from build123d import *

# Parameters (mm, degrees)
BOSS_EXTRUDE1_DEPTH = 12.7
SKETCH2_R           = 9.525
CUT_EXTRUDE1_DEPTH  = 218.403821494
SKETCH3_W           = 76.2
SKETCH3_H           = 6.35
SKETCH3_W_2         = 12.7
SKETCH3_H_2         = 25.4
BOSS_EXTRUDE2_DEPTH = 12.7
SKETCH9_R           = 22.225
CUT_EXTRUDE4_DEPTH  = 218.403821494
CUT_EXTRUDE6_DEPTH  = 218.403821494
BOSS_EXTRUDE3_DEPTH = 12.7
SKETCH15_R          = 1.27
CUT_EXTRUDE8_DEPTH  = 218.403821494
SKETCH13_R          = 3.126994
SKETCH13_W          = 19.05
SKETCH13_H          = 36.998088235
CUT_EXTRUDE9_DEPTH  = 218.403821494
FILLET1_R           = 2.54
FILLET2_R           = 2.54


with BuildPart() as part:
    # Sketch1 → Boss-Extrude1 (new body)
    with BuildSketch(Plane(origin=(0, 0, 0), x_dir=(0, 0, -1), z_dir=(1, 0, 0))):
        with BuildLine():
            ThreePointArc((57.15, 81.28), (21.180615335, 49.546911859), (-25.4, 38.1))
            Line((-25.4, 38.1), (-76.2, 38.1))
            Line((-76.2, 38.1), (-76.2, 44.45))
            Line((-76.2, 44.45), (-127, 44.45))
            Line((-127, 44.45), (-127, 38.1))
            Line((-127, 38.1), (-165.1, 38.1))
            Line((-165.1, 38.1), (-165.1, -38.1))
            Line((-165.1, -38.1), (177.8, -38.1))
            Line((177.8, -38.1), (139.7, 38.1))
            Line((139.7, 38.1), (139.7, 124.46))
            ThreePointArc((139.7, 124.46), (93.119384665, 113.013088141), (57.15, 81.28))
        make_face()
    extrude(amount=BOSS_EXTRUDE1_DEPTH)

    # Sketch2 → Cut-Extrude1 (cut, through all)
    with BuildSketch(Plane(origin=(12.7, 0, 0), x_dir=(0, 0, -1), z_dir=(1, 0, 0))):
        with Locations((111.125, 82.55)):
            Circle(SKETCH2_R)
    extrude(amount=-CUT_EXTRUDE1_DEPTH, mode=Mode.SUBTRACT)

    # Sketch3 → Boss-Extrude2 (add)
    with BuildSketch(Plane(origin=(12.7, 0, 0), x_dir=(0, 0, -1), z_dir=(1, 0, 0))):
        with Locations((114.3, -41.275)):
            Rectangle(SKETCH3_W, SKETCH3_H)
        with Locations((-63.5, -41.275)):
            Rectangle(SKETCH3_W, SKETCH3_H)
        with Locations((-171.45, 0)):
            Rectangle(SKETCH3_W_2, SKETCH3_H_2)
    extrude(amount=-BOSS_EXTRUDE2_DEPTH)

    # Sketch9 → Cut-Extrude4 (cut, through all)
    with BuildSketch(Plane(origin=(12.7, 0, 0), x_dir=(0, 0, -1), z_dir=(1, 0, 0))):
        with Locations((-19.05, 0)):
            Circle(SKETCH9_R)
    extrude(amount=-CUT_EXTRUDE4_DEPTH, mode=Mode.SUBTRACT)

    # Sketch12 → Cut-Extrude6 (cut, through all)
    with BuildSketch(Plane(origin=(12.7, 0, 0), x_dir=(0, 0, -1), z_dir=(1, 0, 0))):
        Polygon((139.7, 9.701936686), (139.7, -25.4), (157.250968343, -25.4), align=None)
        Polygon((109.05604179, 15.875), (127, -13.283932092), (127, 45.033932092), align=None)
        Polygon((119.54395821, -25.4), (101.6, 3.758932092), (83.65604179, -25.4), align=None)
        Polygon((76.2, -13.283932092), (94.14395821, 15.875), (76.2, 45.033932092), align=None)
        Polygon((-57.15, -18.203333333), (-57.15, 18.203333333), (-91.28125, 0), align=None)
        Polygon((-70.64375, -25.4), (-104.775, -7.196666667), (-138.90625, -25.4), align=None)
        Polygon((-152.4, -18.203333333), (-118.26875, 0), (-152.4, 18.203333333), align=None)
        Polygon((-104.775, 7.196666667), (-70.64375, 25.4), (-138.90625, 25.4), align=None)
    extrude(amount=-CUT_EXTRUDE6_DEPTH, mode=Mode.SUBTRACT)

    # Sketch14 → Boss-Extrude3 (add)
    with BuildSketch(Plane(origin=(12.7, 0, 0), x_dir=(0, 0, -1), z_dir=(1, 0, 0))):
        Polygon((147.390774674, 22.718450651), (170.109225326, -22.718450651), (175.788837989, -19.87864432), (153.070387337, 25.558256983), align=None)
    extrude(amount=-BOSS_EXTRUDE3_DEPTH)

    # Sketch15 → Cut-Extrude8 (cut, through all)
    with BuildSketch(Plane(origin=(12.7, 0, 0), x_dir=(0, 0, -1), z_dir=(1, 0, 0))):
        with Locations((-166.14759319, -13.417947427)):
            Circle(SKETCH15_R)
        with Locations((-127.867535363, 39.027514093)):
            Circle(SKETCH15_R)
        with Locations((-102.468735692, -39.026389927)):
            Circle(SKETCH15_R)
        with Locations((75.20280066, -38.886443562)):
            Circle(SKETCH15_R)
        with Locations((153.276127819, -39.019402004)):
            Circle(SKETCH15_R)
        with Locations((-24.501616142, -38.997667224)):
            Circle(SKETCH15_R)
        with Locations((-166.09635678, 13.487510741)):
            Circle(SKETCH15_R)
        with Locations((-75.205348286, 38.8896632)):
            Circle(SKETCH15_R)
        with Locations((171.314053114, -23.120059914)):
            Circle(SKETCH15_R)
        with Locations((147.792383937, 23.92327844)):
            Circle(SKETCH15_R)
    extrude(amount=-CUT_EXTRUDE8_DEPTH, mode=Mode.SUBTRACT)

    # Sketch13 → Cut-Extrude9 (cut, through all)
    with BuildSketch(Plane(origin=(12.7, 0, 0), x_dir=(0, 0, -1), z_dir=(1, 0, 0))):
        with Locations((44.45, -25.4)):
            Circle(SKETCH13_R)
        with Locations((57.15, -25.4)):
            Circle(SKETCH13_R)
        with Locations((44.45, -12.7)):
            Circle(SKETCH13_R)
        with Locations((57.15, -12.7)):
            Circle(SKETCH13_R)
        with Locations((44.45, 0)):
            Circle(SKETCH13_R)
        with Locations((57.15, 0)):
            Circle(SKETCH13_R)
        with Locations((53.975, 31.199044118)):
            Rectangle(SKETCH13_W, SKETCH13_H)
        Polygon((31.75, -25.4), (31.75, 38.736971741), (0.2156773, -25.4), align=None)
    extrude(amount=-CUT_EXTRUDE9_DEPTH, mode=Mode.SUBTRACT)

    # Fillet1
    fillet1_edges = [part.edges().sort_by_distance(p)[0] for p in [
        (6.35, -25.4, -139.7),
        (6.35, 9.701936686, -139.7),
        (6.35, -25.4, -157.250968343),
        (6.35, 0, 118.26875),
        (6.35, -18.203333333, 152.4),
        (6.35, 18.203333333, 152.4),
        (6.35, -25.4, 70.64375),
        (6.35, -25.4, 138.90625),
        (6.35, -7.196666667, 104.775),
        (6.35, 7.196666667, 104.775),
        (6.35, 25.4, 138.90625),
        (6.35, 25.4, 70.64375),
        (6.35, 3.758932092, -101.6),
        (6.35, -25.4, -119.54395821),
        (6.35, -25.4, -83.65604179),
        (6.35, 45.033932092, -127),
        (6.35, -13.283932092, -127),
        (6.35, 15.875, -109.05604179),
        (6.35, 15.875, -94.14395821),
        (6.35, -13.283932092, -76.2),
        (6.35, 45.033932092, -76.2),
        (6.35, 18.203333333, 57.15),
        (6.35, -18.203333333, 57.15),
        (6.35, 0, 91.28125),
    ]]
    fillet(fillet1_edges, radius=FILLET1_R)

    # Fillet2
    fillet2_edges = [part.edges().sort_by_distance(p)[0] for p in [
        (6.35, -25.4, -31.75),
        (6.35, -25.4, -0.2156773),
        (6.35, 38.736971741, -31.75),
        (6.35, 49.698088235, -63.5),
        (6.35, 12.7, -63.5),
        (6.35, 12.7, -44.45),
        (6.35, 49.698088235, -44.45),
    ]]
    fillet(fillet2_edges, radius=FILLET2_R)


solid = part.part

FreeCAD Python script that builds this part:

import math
import FreeCAD as App
import Part
import Sketcher

V = App.Vector
Q = App.Units.Quantity


def edges_at(feature, points):
    """Names of the edges that pass closest to the given points."""
    edges = feature.Shape.Edges
    near = lambda p: min(range(len(edges)), key=lambda i: edges[i].distToShape(Part.Vertex(*p))[0])
    return sorted({f"Edge{near(p) + 1}" for p in points})

doc = App.newDocument("Part")
body = doc.addObject("PartDesign::Body", "Body")

# Sketch on YZ plane
sketch1 = body.newObject("Sketcher::SketchObject", "Sketch")
sketch1.AttachmentSupport = (doc.getObject("YZ_Plane"), [""])
sketch1.MapMode = "FlatFace"
sketch1.addGeometry([
    Part.ArcOfCircle(Part.Circle(V(139, 25, 0), V(0, 0, 1), 100), math.radians(180), math.radians(235)),  # 0
    Part.LineSegment(V(38, 25, 0), V(38, 76, 0)),  # 1
    Part.LineSegment(V(38, 76, 0), V(44, 76, 0)),  # 2
    Part.LineSegment(V(44, 76, 0), V(44, 127, 0)),  # 3
    Part.LineSegment(V(44, 127, 0), V(38, 127, 0)),  # 4
    Part.LineSegment(V(38, 127, 0), V(38, 165, 0)),  # 5
    Part.LineSegment(V(38, 165, 0), V(-38, 165, 0)),  # 6
    Part.LineSegment(V(-38, 165, 0), V(-38, -178, 0)),  # 7
    Part.LineSegment(V(-38, -178, 0), V(38, -140, 0)),  # 8
    Part.LineSegment(V(38, -140, 0), V(124, -140, 0)),  # 9
    Part.ArcOfCircle(Part.Circle(V(24, -140, 0), V(0, 0, 1), 100), math.radians(0), math.radians(55)),  # 10
], False)
sketch1.addConstraint([
    Sketcher.Constraint("Tangent", 0, 1, 1, 1),
    Sketcher.Constraint("Coincident", 1, 2, 2, 1),
    Sketcher.Constraint("Coincident", 2, 2, 3, 1),
    Sketcher.Constraint("Coincident", 3, 2, 4, 1),
    Sketcher.Constraint("Coincident", 4, 2, 5, 1),
    Sketcher.Constraint("Coincident", 5, 2, 6, 1),
    Sketcher.Constraint("Coincident", 6, 2, 7, 1),
    Sketcher.Constraint("Coincident", 7, 2, 8, 1),
    Sketcher.Constraint("Coincident", 8, 2, 9, 1),
    Sketcher.Constraint("Coincident", 9, 2, 10, 1),
    Sketcher.Constraint("Tangent", 10, 2, 0, 2),
    Sketcher.Constraint("Vertical", 1),
    Sketcher.Constraint("Horizontal", 2),
    Sketcher.Constraint("Vertical", 3),
    Sketcher.Constraint("Horizontal", 4),
    Sketcher.Constraint("Vertical", 5),
    Sketcher.Constraint("Horizontal", 6),
    Sketcher.Constraint("Vertical", 7),
    Sketcher.Constraint("Horizontal", 9),
    Sketcher.Constraint("Equal", 0, 10),
    Sketcher.Constraint("Horizontal", 10, 3, 8, 2),
    Sketcher.Constraint("Vertical", 1, 2, 4, 2),
    Sketcher.Constraint("Vertical", 5, 2, 8, 2),
    Sketcher.Constraint("Equal", 1, 3),
    Sketcher.Constraint("DistanceX", 6, 2, 6, 1, Q("3 in")),
    Sketcher.Constraint("DistanceY", 1, 1, 1, 2, Q("2 in")),
    Sketcher.Constraint("DistanceX", 9, 1, 9, 2, Q("3.4 in")),
    Sketcher.Constraint("DistanceY", 5, 1, 5, 2, Q("1.5 in")),
    Sketcher.Constraint("DistanceY", 7, 2, 7, 1, Q("13.5 in")),
    Sketcher.Constraint("DistanceY", -1, 1, 0, 3, Q("1 in")),
    Sketcher.Constraint("DistanceX", 2, 1, 2, 2, Q("0.25 in")),
    Sketcher.Constraint("DistanceY", 10, 3, -1, 1, Q("5.5 in")),
    Sketcher.Constraint("DistanceX", -1, 1, 0, 1, Q("1.5 in")),
])
pad1 = body.newObject("PartDesign::Pad", "Pad")
pad1.Profile = sketch1
pad1.Length = Q("0.5 in")

# Sketch on YZ plane
sketch2 = body.newObject("Sketcher::SketchObject", "Sketch001")
sketch2.AttachmentSupport = (doc.getObject("YZ_Plane"), [""])
sketch2.MapMode = "FlatFace"
sketch2.AttachmentOffset = App.Placement(V(0, 0, 0.5 * 25.4), App.Rotation())
sketch2.addGeometry(Part.Circle(V(83, -111, 0), V(0, 0, 1), 10), False)
sketch2.addConstraint([
    Sketcher.Constraint("Diameter", 0, Q("0.75 in")),
    Sketcher.Constraint("DistanceX", -1, 1, 0, 3, Q("3.25 in")),
    Sketcher.Constraint("DistanceY", 0, 3, -1, 1, Q("4.375 in")),
])
pocket1 = body.newObject("PartDesign::Pocket", "Pocket")
pocket1.Profile = sketch2
pocket1.Type = "ThroughAll"

# Sketch on YZ plane
sketch3 = body.newObject("Sketcher::SketchObject", "Sketch002")
sketch3.AttachmentSupport = (doc.getObject("YZ_Plane"), [""])
sketch3.MapMode = "FlatFace"
sketch3.AttachmentOffset = App.Placement(V(0, 0, 0.5 * 25.4), App.Rotation())
sketch3.addGeometry([
    Part.LineSegment(V(-38, -76, 0), V(-44, -76, 0)),  # 0
    Part.LineSegment(V(-44, -76, 0), V(-44, -152, 0)),  # 1
    Part.LineSegment(V(-44, -152, 0), V(-38, -152, 0)),  # 2
    Part.LineSegment(V(-38, -152, 0), V(-38, -76, 0)),  # 3
    Part.LineSegment(V(-38, 102, 0), V(-44, 102, 0)),  # 4
    Part.LineSegment(V(-44, 102, 0), V(-44, 25, 0)),  # 5
    Part.LineSegment(V(-44, 25, 0), V(-38, 25, 0)),  # 6
    Part.LineSegment(V(-38, 25, 0), V(-38, 102, 0)),  # 7
    Part.LineSegment(V(13, 178, 0), V(-13, 178, 0)),  # 8
    Part.LineSegment(V(-13, 178, 0), V(-13, 165, 0)),  # 9
    Part.LineSegment(V(-13, 165, 0), V(13, 165, 0)),  # 10
    Part.LineSegment(V(13, 165, 0), V(13, 178, 0)),  # 11
], False)
sketch3.addConstraint([
    Sketcher.Constraint("Coincident", 0, 2, 1, 1),
    Sketcher.Constraint("Coincident", 1, 2, 2, 1),
    Sketcher.Constraint("Coincident", 2, 2, 3, 1),
    Sketcher.Constraint("Coincident", 3, 2, 0, 1),
    Sketcher.Constraint("Coincident", 4, 2, 5, 1),
    Sketcher.Constraint("Coincident", 5, 2, 6, 1),
    Sketcher.Constraint("Coincident", 6, 2, 7, 1),
    Sketcher.Constraint("Coincident", 7, 2, 4, 1),
    Sketcher.Constraint("Coincident", 8, 2, 9, 1),
    Sketcher.Constraint("Coincident", 9, 2, 10, 1),
    Sketcher.Constraint("Coincident", 10, 2, 11, 1),
    Sketcher.Constraint("Coincident", 11, 2, 8, 1),
    Sketcher.Constraint("Horizontal", 0),
    Sketcher.Constraint("Vertical", 1),
    Sketcher.Constraint("Horizontal", 2),
    Sketcher.Constraint("Vertical", 3),
    Sketcher.Constraint("Horizontal", 4),
    Sketcher.Constraint("Vertical", 5),
    Sketcher.Constraint("Horizontal", 6),
    Sketcher.Constraint("Vertical", 7),
    Sketcher.Constraint("Horizontal", 8),
    Sketcher.Constraint("Vertical", 9),
    Sketcher.Constraint("Horizontal", 10),
    Sketcher.Constraint("Vertical", 11),
    Sketcher.Constraint("Vertical", 1, 2, 4, 2),
    Sketcher.Constraint("Vertical", 3, 2, 6, 2),
    Sketcher.Constraint("Equal", 3, 5),
    Sketcher.Constraint("DistanceX", 8, 2, 8, 1, Q("1 in")),
    Sketcher.Constraint("DistanceY", 1, 2, 1, 1, Q("3 in")),
    Sketcher.Constraint("DistanceY", 9, 2, 9, 1, Q("0.5 in")),
    Sketcher.Constraint("DistanceY", 0, 2, -1, 1, Q("3 in")),
    Sketcher.Constraint("DistanceY", -1, 1, 4, 2, Q("4 in")),
    Sketcher.Constraint("DistanceY", -1, 1, 8, 2, Q("7 in")),
    Sketcher.Constraint("DistanceX", 7, 2, 8, 2, Q("1 in")),
    Sketcher.Constraint("DistanceX", 0, 2, 0, 1, Q("0.25 in")),
    Sketcher.Constraint("DistanceX", 2, 2, -1, 1, Q("1.5 in")),
])
pad2 = body.newObject("PartDesign::Pad", "Pad001")
pad2.Profile = sketch3
pad2.Length = Q("0.5 in")
pad2.Reversed = True

# Sketch on YZ plane
sketch4 = body.newObject("Sketcher::SketchObject", "Sketch003")
sketch4.AttachmentSupport = (doc.getObject("YZ_Plane"), [""])
sketch4.MapMode = "FlatFace"
sketch4.AttachmentOffset = App.Placement(V(0, 0, 0.5 * 25.4), App.Rotation())
sketch4.addGeometry(Part.Circle(V(0, 19, 0), V(0, 0, 1), 22), False)
sketch4.addConstraint([
    Sketcher.Constraint("PointOnObject", 0, 3, -2),
    Sketcher.Constraint("Diameter", 0, Q("1.75 in")),
    Sketcher.Constraint("DistanceY", -1, 1, 0, 3, Q("0.75 in")),
])
pocket2 = body.newObject("PartDesign::Pocket", "Pocket001")
pocket2.Profile = sketch4
pocket2.Type = "ThroughAll"

# Sketch on YZ plane
sketch5 = body.newObject("Sketcher::SketchObject", "Sketch004")
sketch5.AttachmentSupport = (doc.getObject("YZ_Plane"), [""])
sketch5.MapMode = "FlatFace"
sketch5.AttachmentOffset = App.Placement(V(0, 0, 0.5 * 25.4), App.Rotation())
sketch5.addGeometry([
    Part.LineSegment(V(10, -140, 0), V(-25, -140, 0)),  # 0
    Part.LineSegment(V(-25, -140, 0), V(-25, -157, 0)),  # 1
    Part.LineSegment(V(-25, -157, 0), V(10, -140, 0)),  # 2
    Part.LineSegment(V(16, -109, 0), V(-13, -127, 0)),  # 3
    Part.LineSegment(V(-13, -127, 0), V(45, -127, 0)),  # 4
    Part.LineSegment(V(45, -127, 0), V(16, -109, 0)),  # 5
    Part.LineSegment(V(-25, -120, 0), V(4, -102, 0)),  # 6
    Part.LineSegment(V(4, -102, 0), V(-25, -84, 0)),  # 7
    Part.LineSegment(V(-25, -84, 0), V(-25, -120, 0)),  # 8
    Part.LineSegment(V(-13, -76, 0), V(16, -94, 0)),  # 9
    Part.LineSegment(V(16, -94, 0), V(45, -76, 0)),  # 10
    Part.LineSegment(V(45, -76, 0), V(-13, -76, 0)),  # 11
    Part.LineSegment(V(-18, 57, 0), V(18, 57, 0)),  # 12
    Part.LineSegment(V(18, 57, 0), V(0, 91, 0)),  # 13
    Part.LineSegment(V(0, 91, 0), V(-18, 57, 0)),  # 14
    Part.LineSegment(V(-25, 71, 0), V(-7, 105, 0)),  # 15
    Part.LineSegment(V(-7, 105, 0), V(-25, 139, 0)),  # 16
    Part.LineSegment(V(-25, 139, 0), V(-25, 71, 0)),  # 17
    Part.LineSegment(V(-18, 152, 0), V(0, 118, 0)),  # 18
    Part.LineSegment(V(0, 118, 0), V(18, 152, 0)),  # 19
    Part.LineSegment(V(18, 152, 0), V(-18, 152, 0)),  # 20
    Part.LineSegment(V(7, 105, 0), V(25, 71, 0)),  # 21
    Part.LineSegment(V(25, 71, 0), V(25, 139, 0)),  # 22
    Part.LineSegment(V(25, 139, 0), V(7, 105, 0)),  # 23
], False)
sketch5.addConstraint([
    Sketcher.Constraint("Coincident", 0, 2, 1, 1),
    Sketcher.Constraint("Coincident", 1, 2, 2, 1),
    Sketcher.Constraint("Coincident", 2, 2, 0, 1),
    Sketcher.Constraint("Coincident", 3, 2, 4, 1),
    Sketcher.Constraint("Coincident", 4, 2, 5, 1),
    Sketcher.Constraint("Coincident", 5, 2, 3, 1),
    Sketcher.Constraint("Coincident", 6, 2, 7, 1),
    Sketcher.Constraint("Coincident", 7, 2, 8, 1),
    Sketcher.Constraint("Coincident", 8, 2, 6, 1),
    Sketcher.Constraint("Coincident", 9, 2, 10, 1),
    Sketcher.Constraint("Coincident", 10, 2, 11, 1),
    Sketcher.Constraint("Coincident", 11, 2, 9, 1),
    Sketcher.Constraint("Coincident", 12, 2, 13, 1),
    Sketcher.Constraint("Coincident", 13, 2, 14, 1),
    Sketcher.Constraint("Coincident", 14, 2, 12, 1),
    Sketcher.Constraint("Coincident", 15, 2, 16, 1),
    Sketcher.Constraint("Coincident", 16, 2, 17, 1),
    Sketcher.Constraint("Coincident", 17, 2, 15, 1),
    Sketcher.Constraint("Coincident", 18, 2, 19, 1),
    Sketcher.Constraint("Coincident", 19, 2, 20, 1),
    Sketcher.Constraint("Coincident", 20, 2, 18, 1),
    Sketcher.Constraint("Coincident", 21, 2, 22, 1),
    Sketcher.Constraint("Coincident", 22, 2, 23, 1),
    Sketcher.Constraint("Coincident", 23, 2, 21, 1),
    Sketcher.Constraint("Horizontal", 0),
    Sketcher.Constraint("Vertical", 1),
    Sketcher.Constraint("Horizontal", 4),
    Sketcher.Constraint("Vertical", 8),
    Sketcher.Constraint("Horizontal", 11),
    Sketcher.Constraint("Horizontal", 12),
    Sketcher.Constraint("Vertical", 17),
    Sketcher.Constraint("Horizontal", 20),
    Sketcher.Constraint("Vertical", 22),
    Sketcher.Constraint("Symmetric", 17, 2, 21, 2, -2),
    Sketcher.Constraint("Symmetric", 15, 2, 23, 2, -2),
    Sketcher.Constraint("PointOnObject", 13, 2, -2),
    Sketcher.Constraint("PointOnObject", 18, 2, -2),
    Sketcher.Constraint("Parallel", 3, 6),
    Sketcher.Constraint("Parallel", 5, 7),
    Sketcher.Constraint("Parallel", 7, 9),
    Sketcher.Constraint("Parallel", 6, 10),
    Sketcher.Constraint("Parallel", 14, 15),
    Sketcher.Constraint("Parallel", 13, 16),
    Sketcher.Constraint("Parallel", 16, 18),
    Sketcher.Constraint("Parallel", 15, 19),
    Sketcher.Constraint("Parallel", 18, 21),
    Sketcher.Constraint("Parallel", 19, 23),
    Sketcher.Constraint("Vertical", 1, 2, 7, 2),
    Sketcher.Constraint("Vertical", 5, 2, 9, 2),
    Sketcher.Constraint("Vertical", 4, 2, 10, 2),
    Sketcher.Constraint("Vertical", 3, 2, 11, 2),
    Sketcher.Constraint("Vertical", 8, 2, 16, 2),
    Sketcher.Constraint("Vertical", 12, 2, 19, 2),
    Sketcher.Constraint("Equal", 5, 6),
    Sketcher.Constraint("Equal", 14, 15),
    Sketcher.Constraint("DistanceX", 0, 2, -1, 1, Q("1 in")),
    Sketcher.Constraint("DistanceY", 3, 2, -1, 1, Q("5 in")),
    Sketcher.Constraint("DistanceY", 6, 2, -1, 1, Q("4 in")),
    Sketcher.Constraint("DistanceY", 10, 2, -1, 1, Q("3 in")),
    Sketcher.Constraint("DistanceY", -1, 1, 19, 2, Q("6 in")),
    Sketcher.Constraint("DistanceY", 0, 2, -1, 1, Q("5.5 in")),
    Sketcher.Constraint("DistanceY", 17, 2, 17, 1, Q("2.6875 in")),
    Sketcher.Constraint("DistanceY", -1, 1, 12, 2, Q("2.25 in")),
    Sketcher.Constraint("DistanceX", -1, 1, 5, 2, Q("0.625 in")),
    Sketcher.Constraint("DistanceY", -1, 1, 15, 2, Q("4.125 in")),
    Sketcher.Constraint("DistanceY", 1, 2, 1, 1, Q("17.550968 mm")),
    Sketcher.Constraint("DistanceX", 12, 2, 10, 2, Q("26.830599 mm")),
    Sketcher.Constraint("Distance", 2, Q("39.245158 mm")),
    Sketcher.Constraint("Distance", 3, Q("34.237829 mm")),
    Sketcher.Constraint("DistanceX", 4, 1, 4, 2, Q("58.317864 mm")),
])
pocket3 = body.newObject("PartDesign::Pocket", "Pocket002")
pocket3.Profile = sketch5
pocket3.Type = "ThroughAll"

# Sketch on YZ plane
sketch6 = body.newObject("Sketcher::SketchObject", "Sketch005")
sketch6.AttachmentSupport = (doc.getObject("YZ_Plane"), [""])
sketch6.MapMode = "FlatFace"
sketch6.AttachmentOffset = App.Placement(V(0, 0, 0.5 * 25.4), App.Rotation())
sketch6.addGeometry([
    Part.LineSegment(V(23, -147, 0), V(-23, -170, 0)),
    Part.LineSegment(V(-23, -170, 0), V(-20, -176, 0)),
    Part.LineSegment(V(-20, -176, 0), V(26, -153, 0)),
    Part.LineSegment(V(26, -153, 0), V(23, -147, 0)),
], False)
sketch6.addConstraint([
    Sketcher.Constraint("Coincident", 0, 2, 1, 1),
    Sketcher.Constraint("Coincident", 1, 2, 2, 1),
    Sketcher.Constraint("Coincident", 2, 2, 3, 1),
    Sketcher.Constraint("Coincident", 3, 2, 0, 1),
    Sketcher.Constraint("Perpendicular", 0, 1),
    Sketcher.Constraint("Perpendicular", 1, 2),
    Sketcher.Constraint("Perpendicular", 2, 3),
    Sketcher.Constraint("Distance", 0, Q("2 in")),
    Sketcher.Constraint("Distance", 1, Q("0.25 in")),
    Sketcher.Constraint("DistanceX", 1, 2, 2, 2, Q("45.436901 mm")),
    Sketcher.Constraint("DistanceX", 0, 2, -1, 1, Q("22.718451 mm")),
    Sketcher.Constraint("DistanceY", 0, 2, -1, 1, Q("170.109225 mm")),
])
pad3 = body.newObject("PartDesign::Pad", "Pad002")
pad3.Profile = sketch6
pad3.Length = Q("0.5 in")
pad3.Reversed = True

# Sketch on YZ plane
sketch7 = body.newObject("Sketcher::SketchObject", "Sketch006")
sketch7.AttachmentSupport = (doc.getObject("YZ_Plane"), [""])
sketch7.MapMode = "FlatFace"
sketch7.AttachmentOffset = App.Placement(V(0, 0, 0.5 * 25.4), App.Rotation())
sketch7.addGeometry([
    Part.Circle(V(-13.4, 166.1, 0), V(0, 0, 1), 1.3),  # 0
    Part.Circle(V(39, 127.9, 0), V(0, 0, 1), 1.3),  # 1
    Part.Circle(V(-39, 102.5, 0), V(0, 0, 1), 1.3),  # 2
    Part.Circle(V(-38.9, -75.2, 0), V(0, 0, 1), 1.3),  # 3
    Part.Circle(V(-39, -153.3, 0), V(0, 0, 1), 1.3),  # 4
    Part.Circle(V(-39, 24.5, 0), V(0, 0, 1), 1.3),  # 5
    Part.Circle(V(13.5, 166.1, 0), V(0, 0, 1), 1.3),  # 6
    Part.Circle(V(38.9, 75.2, 0), V(0, 0, 1), 1.3),  # 7
    Part.Circle(V(-23.1, -171.3, 0), V(0, 0, 1), 1.3),  # 8
    Part.Circle(V(23.9, -147.8, 0), V(0, 0, 1), 1.3),  # 9
], False)
sketch7.addConstraint([
    Sketcher.Constraint("Equal", 0, 1),
    Sketcher.Constraint("Equal", 1, 2),
    Sketcher.Constraint("Equal", 2, 3),
    Sketcher.Constraint("Equal", 3, 4),
    Sketcher.Constraint("Equal", 4, 5),
    Sketcher.Constraint("Equal", 5, 6),
    Sketcher.Constraint("Equal", 6, 7),
    Sketcher.Constraint("Equal", 7, 8),
    Sketcher.Constraint("Equal", 8, 9),
    Sketcher.Constraint("Diameter", 0, Q("0.1 in")),
    Sketcher.Constraint("DistanceX", 8, 3, 9, 3, Q("1.8520999 in")),
    Sketcher.Constraint("DistanceY", 3, 3, -1, 1, Q("75.202801 mm")),
    Sketcher.Constraint("DistanceY", 2, 3, 1, 3, Q("25.3988 mm")),
    Sketcher.Constraint("DistanceX", 2, 3, 6, 3, Q("52.513901 mm")),
    Sketcher.Constraint("DistanceY", 8, 3, 7, 3, Q("246.519401 mm")),
    Sketcher.Constraint("DistanceY", 9, 3, 5, 3, Q("172.294 mm")),
    Sketcher.Constraint("DistanceX", 2, 3, -1, 1, Q("39.02639 mm")),
    Sketcher.Constraint("DistanceY", -1, 1, 7, 3, Q("75.205348 mm")),
    Sketcher.Constraint("DistanceX", 8, 3, -1, 1, Q("23.12006 mm")),
    Sketcher.Constraint("DistanceX", 0, 3, 1, 3, Q("52.445462 mm")),
    Sketcher.Constraint("DistanceX", 4, 3, 3, 3, Q("0.132958 mm")),
    Sketcher.Constraint("DistanceY", 4, 3, 0, 3, Q("319.423721 mm")),
    Sketcher.Constraint("DistanceY", 5, 3, 2, 3, Q("77.96712 mm")),
    Sketcher.Constraint("DistanceX", 5, 3, 1, 3, Q("78.025181 mm")),
    Sketcher.Constraint("DistanceX", 0, 3, 6, 3, Q("26.905458 mm")),
    Sketcher.Constraint("DistanceY", 1, 3, 6, 3, Q("38.228821 mm")),
    Sketcher.Constraint("DistanceX", 7, 3, 1, 3, Q("0.137851 mm")),
    Sketcher.Constraint("DistanceY", 7, 3, 6, 3, Q("90.891008 mm")),
    Sketcher.Constraint("DistanceX", 4, 3, 9, 3, Q("62.94268 mm")),
    Sketcher.Constraint("DistanceY", -1, 1, 0, 3, Q("166.147593 mm")),
])
pocket4 = body.newObject("PartDesign::Pocket", "Pocket003")
pocket4.Profile = sketch7
pocket4.Type = "ThroughAll"

# Sketch on YZ plane
sketch8 = body.newObject("Sketcher::SketchObject", "Sketch007")
sketch8.AttachmentSupport = (doc.getObject("YZ_Plane"), [""])
sketch8.MapMode = "FlatFace"
sketch8.AttachmentOffset = App.Placement(V(0, 0, 0.5 * 25.4), App.Rotation())
sketch8.addGeometry([
    Part.Circle(V(-25.4, -44.5, 0), V(0, 0, 1), 3.1),  # 0
    Part.Circle(V(-25.4, -57.1, 0), V(0, 0, 1), 3.1),  # 1
    Part.Circle(V(-12.7, -44.5, 0), V(0, 0, 1), 3.1),  # 2
    Part.Circle(V(-12.7, -57.1, 0), V(0, 0, 1), 3.1),  # 3
    Part.Circle(V(0, -44.5, 0), V(0, 0, 1), 3.1),  # 4
    Part.Circle(V(0, -57.1, 0), V(0, 0, 1), 3.1),  # 5
    Part.LineSegment(V(49.7, -44.5, 0), V(12.7, -44.5, 0)),  # 6
    Part.LineSegment(V(12.7, -44.5, 0), V(12.7, -63.5, 0)),  # 7
    Part.LineSegment(V(12.7, -63.5, 0), V(49.7, -63.5, 0)),  # 8
    Part.LineSegment(V(49.7, -63.5, 0), V(49.7, -44.5, 0)),  # 9
    Part.LineSegment(V(-25.4, -31.8, 0), V(38.7, -31.8, 0)),  # 10
    Part.LineSegment(V(38.7, -31.8, 0), V(-25.4, -0.2, 0)),  # 11
    Part.LineSegment(V(-25.4, -0.2, 0), V(-25.4, -31.8, 0)),  # 12
], False)
sketch8.addConstraint([
    Sketcher.Constraint("Coincident", 6, 2, 7, 1),
    Sketcher.Constraint("Coincident", 7, 2, 8, 1),
    Sketcher.Constraint("Coincident", 8, 2, 9, 1),
    Sketcher.Constraint("Coincident", 9, 2, 6, 1),
    Sketcher.Constraint("Coincident", 10, 2, 11, 1),
    Sketcher.Constraint("Coincident", 11, 2, 12, 1),
    Sketcher.Constraint("Coincident", 12, 2, 10, 1),
    Sketcher.Constraint("Horizontal", 6),
    Sketcher.Constraint("Vertical", 7),
    Sketcher.Constraint("Horizontal", 8),
    Sketcher.Constraint("Vertical", 9),
    Sketcher.Constraint("Horizontal", 10),
    Sketcher.Constraint("Vertical", 12),
    Sketcher.Constraint("Equal", 0, 1),
    Sketcher.Constraint("Equal", 1, 2),
    Sketcher.Constraint("Equal", 2, 3),
    Sketcher.Constraint("Equal", 3, 4),
    Sketcher.Constraint("Equal", 4, 5),
    Sketcher.Constraint("PointOnObject", 4, 3, -2),
    Sketcher.Constraint("PointOnObject", 5, 3, -2),
    Sketcher.Constraint("Horizontal", 0, 3, 2, 3),
    Sketcher.Constraint("Horizontal", 1, 3, 3, 3),
    Sketcher.Constraint("Horizontal", 2, 3, 4, 3),
    Sketcher.Constraint("Horizontal", 3, 3, 5, 3),
    Sketcher.Constraint("Horizontal", 4, 3, 6, 2),
    Sketcher.Constraint("Vertical", 0, 3, 1, 3),
    Sketcher.Constraint("Vertical", 2, 3, 3, 3),
    Sketcher.Constraint("Vertical", 1, 3, 11, 2),
    Sketcher.Constraint("DistanceX", 0, 3, -1, 1, Q("1 in")),
    Sketcher.Constraint("DistanceX", 2, 3, 6, 2, Q("1 in")),
    Sketcher.Constraint("DistanceY", 1, 3, 12, 2, Q("1 in")),
    Sketcher.Constraint("DistanceY", 7, 2, 7, 1, Q("0.75 in")),
    Sketcher.Constraint("DistanceX", 2, 3, -1, 1, Q("0.5 in")),
    Sketcher.Constraint("DistanceY", 7, 2, -1, 1, Q("2.5 in")),
    Sketcher.Constraint("DistanceY", 1, 3, 0, 3, Q("0.5 in")),
    Sketcher.Constraint("Diameter", 0, Q("6.253988 mm")),
    Sketcher.Constraint("DistanceX", 6, 2, 6, 1, Q("36.998088 mm")),
    Sketcher.Constraint("DistanceX", 10, 1, 10, 2, Q("64.136972 mm")),
    Sketcher.Constraint("DistanceY", 12, 2, 12, 1, Q("31.534323 mm")),
])
pocket5 = body.newObject("PartDesign::Pocket", "Pocket004")
pocket5.Profile = sketch8
pocket5.Type = "ThroughAll"
doc.recompute()

fillet = body.newObject("PartDesign::Fillet", "Fillet")
fillet.Base = (pocket5, edges_at(pocket5, [
    (6.35, -25.4, -139.7),
    (6.35, 9.702, -139.7),
    (6.35, -25.4, -157.251),
    (6.35, 0, 118.269),
    (6.35, -18.203, 152.4),
    (6.35, 18.203, 152.4),
    (6.35, -25.4, 70.644),
    (6.35, -25.4, 138.906),
    (6.35, -7.197, 104.775),
    (6.35, 7.197, 104.775),
    (6.35, 25.4, 138.906),
    (6.35, 25.4, 70.644),
    (6.35, 3.759, -101.6),
    (6.35, -25.4, -119.544),
    (6.35, -25.4, -83.656),
    (6.35, 45.034, -127),
    (6.35, -13.284, -127),
    (6.35, 15.875, -109.056),
    (6.35, 15.875, -94.144),
    (6.35, -13.284, -76.2),
    (6.35, 45.034, -76.2),
    (6.35, 18.203, 57.15),
    (6.35, -18.203, 57.15),
    (6.35, 0, 91.281),
]))
fillet.Radius = Q("0.1 in")
doc.recompute()

fillet2 = body.newObject("PartDesign::Fillet", "Fillet001")
fillet2.Base = (fillet, edges_at(fillet, [
    (6.35, -25.4, -31.75),
    (6.35, -25.4, -0.216),
    (6.35, 38.737, -31.75),
    (6.35, 49.698, -63.5),
    (6.35, 12.7, -63.5),
    (6.35, 12.7, -44.45),
    (6.35, 49.698, -44.45),
]))
fillet2.Radius = Q("0.1 in")

doc.recompute()
